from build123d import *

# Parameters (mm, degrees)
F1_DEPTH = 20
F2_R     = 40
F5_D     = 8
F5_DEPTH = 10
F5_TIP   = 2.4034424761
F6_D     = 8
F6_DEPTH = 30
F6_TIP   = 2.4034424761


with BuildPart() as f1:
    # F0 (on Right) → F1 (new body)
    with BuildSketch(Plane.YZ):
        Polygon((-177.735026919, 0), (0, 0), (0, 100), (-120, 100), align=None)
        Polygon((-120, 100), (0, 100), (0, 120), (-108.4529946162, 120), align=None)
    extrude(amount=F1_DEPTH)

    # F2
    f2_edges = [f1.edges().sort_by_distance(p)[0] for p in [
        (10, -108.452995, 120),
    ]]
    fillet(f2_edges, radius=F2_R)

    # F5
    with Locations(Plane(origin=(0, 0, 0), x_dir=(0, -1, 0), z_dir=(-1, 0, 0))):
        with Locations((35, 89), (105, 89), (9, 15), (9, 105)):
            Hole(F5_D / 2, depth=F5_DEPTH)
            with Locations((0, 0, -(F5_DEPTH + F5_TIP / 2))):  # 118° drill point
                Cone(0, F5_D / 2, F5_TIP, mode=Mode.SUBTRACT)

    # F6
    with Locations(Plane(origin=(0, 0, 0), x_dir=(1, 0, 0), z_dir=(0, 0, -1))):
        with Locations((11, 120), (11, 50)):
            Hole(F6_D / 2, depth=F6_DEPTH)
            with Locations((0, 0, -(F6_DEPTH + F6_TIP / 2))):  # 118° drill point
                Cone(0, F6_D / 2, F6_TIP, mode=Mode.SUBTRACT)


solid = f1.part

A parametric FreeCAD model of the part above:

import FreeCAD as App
import Part
import Sketcher
from FreeCAD import Vector
Q = App.Units.Quantity


def edges_at(feature, points):
    """Names of the edges that pass closest to the given points."""
    edges = feature.Shape.Edges
    near = lambda p: min(range(len(edges)), key=lambda i: edges[i].distToShape(Part.Vertex(*p))[0])
    return sorted({f"Edge{near(p) + 1}" for p in points})

doc = App.newDocument("Part")
body = doc.addObject("PartDesign::Body", "Body")

sketch1 = body.newObject("Sketcher::SketchObject", "Sketch")
sketch1.AttachmentSupport = (doc.getObject("YZ_Plane"), [""])
sketch1.MapMode = "FlatFace"
sketch1.addGeometry([
    Part.LineSegment(Vector(-177.735027, 0, 0), Vector(0, 0, 0)),
    Part.LineSegment(Vector(0, 0, 0), Vector(0, 120, 0)),
    Part.LineSegment(Vector(0, 120, 0), Vector(-108.452995, 120, 0)),
    Part.LineSegment(Vector(-108.452995, 120, 0), Vector(-177.735027, 0, 0)),
], False)
sketch1.addConstraint([
    Sketcher.Constraint("Coincident", 0, 2, 1, 1),
    Sketcher.Constraint("Coincident", 1, 2, 2, 1),
    Sketcher.Constraint("Coincident", 2, 2, 3, 1),
    Sketcher.Constraint("Coincident", 3, 2, 0, 1),
    Sketcher.Constraint("Horizontal", 0),
    Sketcher.Constraint("Vertical", 1),
    Sketcher.Constraint("Horizontal", 2),
    Sketcher.Constraint("Coincident", 0, 2, -1, 1),
    Sketcher.Constraint("DistanceY", 1, 1, 1, 2, 120.0),
    Sketcher.Constraint("Angle", 3, Q("-120 deg")),
    Sketcher.Constraint("DistanceX", 0, 1, 0, 2, 177.735027),
])
pad1 = body.newObject("PartDesign::Pad", "Pad")
pad1.Profile = sketch1
pad1.Length = 20
doc.recompute()

fillet = body.newObject("PartDesign::Fillet", "Fillet")
fillet.Base = (pad1, edges_at(pad1, [(10, -108.453, 120)]))
fillet.Radius = 40

sketch2 = body.newObject("Sketcher::SketchObject", "Sketch001")
sketch2.AttachmentSupport = (doc.getObject("YZ_Plane"), [""])
sketch2.MapMode = "FlatFace"
sketch2.addGeometry([
    Part.Circle(Vector(-35, 89, 0), Vector(0, 0, 1), 4),
    Part.Circle(Vector(-105, 89, 0), Vector(0, 0, 1), 4),
    Part.Circle(Vector(-9, 15, 0), Vector(0, 0, 1), 4),
    Part.Circle(Vector(-9, 105, 0), Vector(0, 0, 1), 4),
], False)
sketch2.addConstraint([
    Sketcher.Constraint("Equal", 0, 1),
    Sketcher.Constraint("Equal", 1, 2),
    Sketcher.Constraint("Equal", 2, 3),
    Sketcher.Constraint("Horizontal", 0, 3, 1, 3),
    Sketcher.Constraint("Vertical", 2, 3, 3, 3),
    Sketcher.Constraint("Diameter", 0, 8.0),
    Sketcher.Constraint("DistanceX", 0, 3, -1, 1, 35.0),
    Sketcher.Constraint("DistanceY", -1, 1, 0, 3, 89.0),
    Sketcher.Constraint("DistanceX", 1, 3, -1, 1, 105.0),
    Sketcher.Constraint("DistanceX", 2, 3, -1, 1, 9.0),
    Sketcher.Constraint("DistanceY", -1, 1, 2, 3, 15.0),
    Sketcher.Constraint("DistanceY", -1, 1, 3, 3, 105.0),
])
doc.recompute()
hole = body.newObject("PartDesign::Hole", "Hole")
hole.Profile = sketch2
hole.ThreadType = "None"
hole.Diameter = 8
hole.DepthType = "Dimension"
hole.Depth = 10
hole.DrillPoint = "Angled"
hole.DrillPointAngle = 118
hole.Reversed = True

sketch3 = body.newObject("Sketcher::SketchObject", "Sketch002")
sketch3.AttachmentSupport = (doc.getObject("XY_Plane"), [""])
sketch3.MapMode = "FlatFace"
sketch3.addGeometry([
    Part.Circle(Vector(11, -120, 0), Vector(0, 0, 1), 4),
    Part.Circle(Vector(11, -50, 0), Vector(0, 0, 1), 4),
], False)
sketch3.addConstraint([
    Sketcher.Constraint("Equal", 0, 1),
    Sketcher.Constraint("Vertical", 0, 3, 1, 3),
    Sketcher.Constraint("Diameter", 0, 8.0),
    Sketcher.Constraint("DistanceX", -1, 1, 0, 3, 11.0),
    Sketcher.Constraint("DistanceY", 0, 3, -1, 1, 120.0),
    Sketcher.Constraint("DistanceY", 1, 3, -1, 1, 50.0),
])
doc.recompute()
hole2 = body.newObject("PartDesign::Hole", "Hole001")
hole2.Profile = sketch3
hole2.ThreadType = "None"
hole2.Diameter = 8
hole2.DepthType = "Dimension"
hole2.Depth = 30
hole2.DrillPoint = "Angled"
hole2.DrillPointAngle = 118
hole2.Reversed = True

doc.recompute()
